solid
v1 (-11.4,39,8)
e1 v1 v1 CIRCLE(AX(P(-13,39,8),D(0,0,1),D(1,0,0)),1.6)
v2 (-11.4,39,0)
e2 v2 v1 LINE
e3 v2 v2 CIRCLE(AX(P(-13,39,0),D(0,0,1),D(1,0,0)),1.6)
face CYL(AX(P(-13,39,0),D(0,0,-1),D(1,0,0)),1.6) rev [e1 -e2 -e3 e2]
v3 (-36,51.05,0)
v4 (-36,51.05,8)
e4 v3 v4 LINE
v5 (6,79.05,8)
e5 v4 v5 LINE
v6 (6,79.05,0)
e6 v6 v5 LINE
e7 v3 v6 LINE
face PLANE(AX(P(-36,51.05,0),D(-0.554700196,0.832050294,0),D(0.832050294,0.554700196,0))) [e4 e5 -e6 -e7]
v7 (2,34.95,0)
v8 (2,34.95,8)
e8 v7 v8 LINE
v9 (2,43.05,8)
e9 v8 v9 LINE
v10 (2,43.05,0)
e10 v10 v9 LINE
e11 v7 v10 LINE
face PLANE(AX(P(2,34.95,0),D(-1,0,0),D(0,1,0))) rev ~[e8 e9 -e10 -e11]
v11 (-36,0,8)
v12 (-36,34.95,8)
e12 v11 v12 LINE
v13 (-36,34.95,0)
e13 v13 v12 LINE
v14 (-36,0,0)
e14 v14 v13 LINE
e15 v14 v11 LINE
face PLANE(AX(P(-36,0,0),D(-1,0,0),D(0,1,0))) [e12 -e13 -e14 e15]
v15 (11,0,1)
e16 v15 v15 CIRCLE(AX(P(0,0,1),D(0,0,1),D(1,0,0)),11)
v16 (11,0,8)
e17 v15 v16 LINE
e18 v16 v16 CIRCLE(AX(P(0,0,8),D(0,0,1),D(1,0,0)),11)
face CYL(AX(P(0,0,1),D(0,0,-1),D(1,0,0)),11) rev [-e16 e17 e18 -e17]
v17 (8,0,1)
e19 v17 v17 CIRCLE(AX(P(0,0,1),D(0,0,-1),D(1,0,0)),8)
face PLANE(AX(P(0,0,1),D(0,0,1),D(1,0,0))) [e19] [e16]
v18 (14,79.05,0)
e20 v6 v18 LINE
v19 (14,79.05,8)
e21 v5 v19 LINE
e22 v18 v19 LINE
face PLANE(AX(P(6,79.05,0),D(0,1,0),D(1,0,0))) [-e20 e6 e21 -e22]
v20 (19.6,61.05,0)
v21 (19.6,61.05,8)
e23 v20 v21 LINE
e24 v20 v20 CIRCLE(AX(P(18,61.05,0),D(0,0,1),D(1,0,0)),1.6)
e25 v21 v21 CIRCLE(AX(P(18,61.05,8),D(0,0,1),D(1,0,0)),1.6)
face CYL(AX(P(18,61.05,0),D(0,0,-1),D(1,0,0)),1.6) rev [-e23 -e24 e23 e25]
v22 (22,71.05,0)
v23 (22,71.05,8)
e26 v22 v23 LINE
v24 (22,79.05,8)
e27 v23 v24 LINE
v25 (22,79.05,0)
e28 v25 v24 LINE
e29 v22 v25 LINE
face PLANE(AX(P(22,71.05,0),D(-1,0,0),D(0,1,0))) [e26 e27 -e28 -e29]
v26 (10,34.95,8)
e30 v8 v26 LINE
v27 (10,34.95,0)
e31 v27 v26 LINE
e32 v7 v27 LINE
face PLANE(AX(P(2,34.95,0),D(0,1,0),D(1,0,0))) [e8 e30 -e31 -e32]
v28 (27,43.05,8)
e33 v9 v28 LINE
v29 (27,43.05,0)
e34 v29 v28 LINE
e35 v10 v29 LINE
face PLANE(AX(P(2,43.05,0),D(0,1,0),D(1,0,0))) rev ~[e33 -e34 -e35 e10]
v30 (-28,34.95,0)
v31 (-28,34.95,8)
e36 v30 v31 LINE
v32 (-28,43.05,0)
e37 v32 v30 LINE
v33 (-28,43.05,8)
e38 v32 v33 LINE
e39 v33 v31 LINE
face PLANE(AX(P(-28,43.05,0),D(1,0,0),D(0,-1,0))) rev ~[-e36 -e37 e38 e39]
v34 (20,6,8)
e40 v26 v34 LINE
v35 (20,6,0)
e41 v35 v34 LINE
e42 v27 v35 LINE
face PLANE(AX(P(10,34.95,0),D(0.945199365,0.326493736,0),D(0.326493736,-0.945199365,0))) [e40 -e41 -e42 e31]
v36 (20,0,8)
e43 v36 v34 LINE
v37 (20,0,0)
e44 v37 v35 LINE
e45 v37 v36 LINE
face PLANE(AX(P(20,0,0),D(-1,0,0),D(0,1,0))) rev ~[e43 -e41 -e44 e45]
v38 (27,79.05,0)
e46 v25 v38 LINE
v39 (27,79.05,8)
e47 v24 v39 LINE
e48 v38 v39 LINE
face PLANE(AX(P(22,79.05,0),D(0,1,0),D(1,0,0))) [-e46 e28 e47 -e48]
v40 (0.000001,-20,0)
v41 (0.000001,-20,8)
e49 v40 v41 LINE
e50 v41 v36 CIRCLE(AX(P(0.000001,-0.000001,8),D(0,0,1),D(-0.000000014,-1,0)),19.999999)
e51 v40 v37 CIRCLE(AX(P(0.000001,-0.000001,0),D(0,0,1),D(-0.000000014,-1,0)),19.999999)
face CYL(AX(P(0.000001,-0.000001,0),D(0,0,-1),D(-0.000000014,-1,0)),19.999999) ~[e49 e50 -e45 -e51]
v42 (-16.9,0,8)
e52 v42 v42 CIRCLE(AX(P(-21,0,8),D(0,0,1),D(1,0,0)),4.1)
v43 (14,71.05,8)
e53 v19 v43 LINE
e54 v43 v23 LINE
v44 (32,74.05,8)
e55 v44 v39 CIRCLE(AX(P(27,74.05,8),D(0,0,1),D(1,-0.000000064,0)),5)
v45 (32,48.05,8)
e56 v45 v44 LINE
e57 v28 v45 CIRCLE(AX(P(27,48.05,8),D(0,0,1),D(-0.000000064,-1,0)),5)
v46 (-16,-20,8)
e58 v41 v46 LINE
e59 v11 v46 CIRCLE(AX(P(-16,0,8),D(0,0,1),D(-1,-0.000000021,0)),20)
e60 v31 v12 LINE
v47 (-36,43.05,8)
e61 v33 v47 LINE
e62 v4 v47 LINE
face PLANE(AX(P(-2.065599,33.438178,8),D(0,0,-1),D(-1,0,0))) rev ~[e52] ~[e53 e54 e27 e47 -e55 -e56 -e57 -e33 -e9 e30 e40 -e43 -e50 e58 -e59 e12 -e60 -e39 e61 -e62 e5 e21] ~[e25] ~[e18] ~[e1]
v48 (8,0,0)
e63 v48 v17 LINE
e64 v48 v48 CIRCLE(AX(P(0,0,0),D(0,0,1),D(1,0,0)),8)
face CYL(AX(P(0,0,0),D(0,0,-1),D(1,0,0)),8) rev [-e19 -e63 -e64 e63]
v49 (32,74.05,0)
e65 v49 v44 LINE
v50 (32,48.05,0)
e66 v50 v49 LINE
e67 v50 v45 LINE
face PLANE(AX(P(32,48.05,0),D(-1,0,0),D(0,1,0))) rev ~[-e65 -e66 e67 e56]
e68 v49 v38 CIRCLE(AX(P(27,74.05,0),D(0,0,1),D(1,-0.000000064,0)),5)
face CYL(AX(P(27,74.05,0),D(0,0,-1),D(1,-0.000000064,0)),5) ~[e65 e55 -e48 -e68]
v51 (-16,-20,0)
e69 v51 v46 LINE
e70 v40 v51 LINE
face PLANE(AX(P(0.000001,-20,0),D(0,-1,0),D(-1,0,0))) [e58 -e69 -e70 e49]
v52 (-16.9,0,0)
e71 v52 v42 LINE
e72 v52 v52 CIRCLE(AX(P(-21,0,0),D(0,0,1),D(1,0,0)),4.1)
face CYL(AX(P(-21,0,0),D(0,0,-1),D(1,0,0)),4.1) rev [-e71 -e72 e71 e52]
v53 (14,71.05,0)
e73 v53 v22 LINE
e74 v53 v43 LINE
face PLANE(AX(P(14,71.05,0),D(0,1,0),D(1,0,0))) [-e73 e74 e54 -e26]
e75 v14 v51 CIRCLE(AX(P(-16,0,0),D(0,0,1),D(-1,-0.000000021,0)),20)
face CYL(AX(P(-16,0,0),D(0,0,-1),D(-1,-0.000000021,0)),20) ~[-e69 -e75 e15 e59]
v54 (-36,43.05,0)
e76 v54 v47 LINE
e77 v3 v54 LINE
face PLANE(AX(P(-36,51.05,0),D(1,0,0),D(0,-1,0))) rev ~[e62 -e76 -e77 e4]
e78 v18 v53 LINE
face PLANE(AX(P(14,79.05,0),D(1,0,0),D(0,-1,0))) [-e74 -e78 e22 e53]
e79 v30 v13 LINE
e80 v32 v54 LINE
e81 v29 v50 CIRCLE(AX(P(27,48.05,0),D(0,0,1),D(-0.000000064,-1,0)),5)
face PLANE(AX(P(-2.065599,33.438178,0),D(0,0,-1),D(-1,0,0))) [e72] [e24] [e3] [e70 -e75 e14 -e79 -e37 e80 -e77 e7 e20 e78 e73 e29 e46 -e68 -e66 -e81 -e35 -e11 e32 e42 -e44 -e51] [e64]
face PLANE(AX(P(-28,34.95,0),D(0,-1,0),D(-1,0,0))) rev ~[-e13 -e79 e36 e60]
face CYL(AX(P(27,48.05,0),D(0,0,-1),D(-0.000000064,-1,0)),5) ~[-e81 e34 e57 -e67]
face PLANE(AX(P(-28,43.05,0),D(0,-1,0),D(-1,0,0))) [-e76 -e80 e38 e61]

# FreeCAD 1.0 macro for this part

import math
import FreeCAD as App
import Part
import Sketcher

V = App.Vector
Q = App.Units.Quantity

doc = App.newDocument("Part")
body = doc.addObject("PartDesign::Body", "Body")

# Sketch on XY plane
sketch1 = body.newObject("Sketcher::SketchObject", "Sketch")
sketch1.AttachmentSupport = (doc.getObject("XY_Plane"), [""])
sketch1.MapMode = "FlatFace"
sketch1.AttachmentOffset = App.Placement(V(0, 0, 1), App.Rotation())
sketch1.addGeometry(Part.Circle(V(0, 0, 0), V(0, 0, 1), 11), False)
sketch1.addConstraint([
    Sketcher.Constraint("Coincident", 0, 3, -1, 1),
    Sketcher.Constraint("Diameter", 0, Q("22 mm")),
])
pad1 = body.newObject("PartDesign::Pad", "Pad")
pad1.Profile = sketch1
pad1.Length = 7
body2 = doc.addObject("PartDesign::Body", "Body001")

# Sketch on XY plane
sketch2 = body2.newObject("Sketcher::SketchObject", "Sketch001")
sketch2.AttachmentSupport = (doc.getObject("XY_Plane001"), [""])
sketch2.MapMode = "FlatFace"
sketch2.addGeometry([
    Part.LineSegment(V(-16, -20, 0), V(0, -20, 0)),  # 0
    Part.ArcOfCircle(Part.Circle(V(0, 0, 0), V(0, 0, 1), 20), math.radians(-90), math.radians(0)),  # 1
    Part.LineSegment(V(20, 0, 0), V(20, 6, 0)),  # 2
    Part.LineSegment(V(20, 6, 0), V(10, 35, 0)),  # 3
    Part.LineSegment(V(10, 35, 0), V(2, 35, 0)),  # 4
    Part.LineSegment(V(2, 35, 0), V(2, 43, 0)),  # 5
    Part.LineSegment(V(2, 43, 0), V(27, 43, 0)),  # 6
    Part.ArcOfCircle(Part.Circle(V(27, 48, 0), V(0, 0, 1), 5), math.radians(-90), math.radians(0)),  # 7
    Part.LineSegment(V(32, 48, 0), V(32, 74, 0)),  # 8
    Part.ArcOfCircle(Part.Circle(V(27, 74.1, 0), V(0, 0, 1), 5), math.radians(0), math.radians(90)),  # 9
    Part.LineSegment(V(27, 79, 0), V(22, 79, 0)),  # 10
    Part.LineSegment(V(22, 79, 0), V(22, 71, 0)),  # 11
    Part.LineSegment(V(22, 71, 0), V(14, 71, 0)),  # 12
    Part.LineSegment(V(14, 71, 0), V(14, 79, 0)),  # 13
    Part.LineSegment(V(14, 79, 0), V(6, 79, 0)),  # 14
    Part.LineSegment(V(6, 79, 0), V(-36, 51, 0)),  # 15
    Part.LineSegment(V(-36, 51, 0), V(-36, 43, 0)),  # 16
    Part.LineSegment(V(-36, 43, 0), V(-28, 43, 0)),  # 17
    Part.LineSegment(V(-28, 43, 0), V(-28, 35, 0)),  # 18
    Part.LineSegment(V(-28, 35, 0), V(-36, 35, 0)),  # 19
    Part.LineSegment(V(-36, 35, 0), V(-36, 0, 0)),  # 20
    Part.ArcOfCircle(Part.Circle(V(-16, 0, 0), V(0, 0, 1), 20), math.radians(-180), math.radians(-90)),  # 21
    Part.Circle(V(0, 0, 0), V(0, 0, 1), 8),  # 22
    Part.Circle(V(-21, 0, 0), V(0, 0, 1), 4.1),  # 23
    Part.Circle(V(18, 61, 0), V(0, 0, 1), 1.6),  # 24
    Part.Circle(V(-13, 39, 0), V(0, 0, 1), 1.6),  # 25
], False)
sketch2.addConstraint([
    Sketcher.Constraint("Tangent", 0, 2, 1, 1),
    Sketcher.Constraint("Tangent", 1, 2, 2, 1),
    Sketcher.Constraint("Coincident", 2, 2, 3, 1),
    Sketcher.Constraint("Coincident", 3, 2, 4, 1),
    Sketcher.Constraint("Coincident", 4, 2, 5, 1),
    Sketcher.Constraint("Coincident", 5, 2, 6, 1),
    Sketcher.Constraint("Tangent", 6, 2, 7, 1),
    Sketcher.Constraint("Tangent", 7, 2, 8, 1),
    Sketcher.Constraint("Tangent", 8, 2, 9, 1),
    Sketcher.Constraint("Tangent", 9, 2, 10, 1),
    Sketcher.Constraint("Coincident", 10, 2, 11, 1),
    Sketcher.Constraint("Coincident", 11, 2, 12, 1),
    Sketcher.Constraint("Coincident", 12, 2, 13, 1),
    Sketcher.Constraint("Coincident", 13, 2, 14, 1),
    Sketcher.Constraint("Coincident", 14, 2, 15, 1),
    Sketcher.Constraint("Coincident", 15, 2, 16, 1),
    Sketcher.Constraint("Coincident", 16, 2, 17, 1),
    Sketcher.Constraint("Coincident", 17, 2, 18, 1),
    Sketcher.Constraint("Coincident", 18, 2, 19, 1),
    Sketcher.Constraint("Coincident", 19, 2, 20, 1),
    Sketcher.Constraint("Tangent", 20, 2, 21, 1),
    Sketcher.Constraint("Tangent", 21, 2, 0, 1),
    Sketcher.Constraint("Horizontal", 0),
    Sketcher.Constraint("Vertical", 2),
    Sketcher.Constraint("Horizontal", 4),
    Sketcher.Constraint("Vertical", 5),
    Sketcher.Constraint("Horizontal", 6),
    Sketcher.Constraint("Vertical", 8),
    Sketcher.Constraint("Horizontal", 10),
    Sketcher.Constraint("Vertical", 11),
    Sketcher.Constraint("Horizontal", 12),
    Sketcher.Constraint("Vertical", 13),
    Sketcher.Constraint("Horizontal", 14),
    Sketcher.Constraint("Vertical", 16),
    Sketcher.Constraint("Horizontal", 17),
    Sketcher.Constraint("Vertical", 18),
    Sketcher.Constraint("Horizontal", 19),
    Sketcher.Constraint("Vertical", 20),
    Sketcher.Constraint("Coincident", 1, 3, -1, 1),
    Sketcher.Constraint("Coincident", 22, 3, -1, 1),
    Sketcher.Constraint("Equal", 7, 9),
    Sketcher.Constraint("Equal", 1, 21),
    Sketcher.Constraint("Equal", 24, 25),
    Sketcher.Constraint("PointOnObject", 23, 3, -1),
    Sketcher.Constraint("Horizontal", 10, 2, 13, 2),
    Sketcher.Constraint("Horizontal", 6, 2, 16, 2),
    Sketcher.Constraint("Horizontal", 4, 2, 18, 2),
    Sketcher.Constraint("Vertical", 16, 2, 19, 2),
    Sketcher.Constraint("Equal", 4, 12),
    Sketcher.Constraint("Equal", 12, 14),
    Sketcher.Constraint("Equal", 14, 17),
    Sketcher.Constraint("Equal", 19, 11),
    Sketcher.Constraint("Equal", 13, 16),
    Sketcher.Constraint("Diameter", 22, Q("16 mm")),
    Sketcher.Constraint("Radius", 1, Q("19.999999 mm")),
    Sketcher.Constraint("Radius", 7, Q("5 mm")),
    Sketcher.Constraint("Diameter", 23, Q("8.2 mm")),
    Sketcher.Constraint("Diameter", 24, Q("3.2 mm")),
    Sketcher.Constraint("DistanceX", 0, 1, 0, 2, Q("16.000001 mm")),
    Sketcher.Constraint("DistanceX", 4, 2, 4, 1, Q("8 mm")),
    Sketcher.Constraint("DistanceX", 6, 1, 6, 2, Q("25 mm")),
    Sketcher.Constraint("DistanceX", 10, 2, 10, 1, Q("5 mm")),
    Sketcher.Constraint("DistanceY", 2, 1, 2, 2, Q("6 mm")),
    Sketcher.Constraint("DistanceY", 8, 1, 8, 2, Q("26 mm")),
    Sketcher.Constraint("DistanceY", 5, 1, 5, 2, Q("8.1 mm")),
    Sketcher.Constraint("DistanceX", -1, 1, 7, 3, Q("27 mm")),
    Sketcher.Constraint("DistanceX", 23, 3, -1, 1, Q("21 mm")),
    Sketcher.Constraint("DistanceX", -1, 1, 24, 3, Q("18 mm")),
    Sketcher.Constraint("DistanceX", 25, 3, -1, 1, Q("13 mm")),
    Sketcher.Constraint("DistanceY", -1, 1, 25, 3, Q("39 mm")),
    Sketcher.Constraint("DistanceY", 7, 3, 24, 3, Q("13 mm")),
    Sketcher.Constraint("DistanceY", 20, 2, 20, 1, Q("34.95 mm")),
])
pad2 = body2.newObject("PartDesign::Pad", "Pad001")
pad2.Profile = sketch2
pad2.Length = 8
doc.recompute()

boolean = body2.newObject("PartDesign::Boolean", "Boolean")
boolean.Type = "Cut"
boolean.addObjects([body])

doc.recompute()
